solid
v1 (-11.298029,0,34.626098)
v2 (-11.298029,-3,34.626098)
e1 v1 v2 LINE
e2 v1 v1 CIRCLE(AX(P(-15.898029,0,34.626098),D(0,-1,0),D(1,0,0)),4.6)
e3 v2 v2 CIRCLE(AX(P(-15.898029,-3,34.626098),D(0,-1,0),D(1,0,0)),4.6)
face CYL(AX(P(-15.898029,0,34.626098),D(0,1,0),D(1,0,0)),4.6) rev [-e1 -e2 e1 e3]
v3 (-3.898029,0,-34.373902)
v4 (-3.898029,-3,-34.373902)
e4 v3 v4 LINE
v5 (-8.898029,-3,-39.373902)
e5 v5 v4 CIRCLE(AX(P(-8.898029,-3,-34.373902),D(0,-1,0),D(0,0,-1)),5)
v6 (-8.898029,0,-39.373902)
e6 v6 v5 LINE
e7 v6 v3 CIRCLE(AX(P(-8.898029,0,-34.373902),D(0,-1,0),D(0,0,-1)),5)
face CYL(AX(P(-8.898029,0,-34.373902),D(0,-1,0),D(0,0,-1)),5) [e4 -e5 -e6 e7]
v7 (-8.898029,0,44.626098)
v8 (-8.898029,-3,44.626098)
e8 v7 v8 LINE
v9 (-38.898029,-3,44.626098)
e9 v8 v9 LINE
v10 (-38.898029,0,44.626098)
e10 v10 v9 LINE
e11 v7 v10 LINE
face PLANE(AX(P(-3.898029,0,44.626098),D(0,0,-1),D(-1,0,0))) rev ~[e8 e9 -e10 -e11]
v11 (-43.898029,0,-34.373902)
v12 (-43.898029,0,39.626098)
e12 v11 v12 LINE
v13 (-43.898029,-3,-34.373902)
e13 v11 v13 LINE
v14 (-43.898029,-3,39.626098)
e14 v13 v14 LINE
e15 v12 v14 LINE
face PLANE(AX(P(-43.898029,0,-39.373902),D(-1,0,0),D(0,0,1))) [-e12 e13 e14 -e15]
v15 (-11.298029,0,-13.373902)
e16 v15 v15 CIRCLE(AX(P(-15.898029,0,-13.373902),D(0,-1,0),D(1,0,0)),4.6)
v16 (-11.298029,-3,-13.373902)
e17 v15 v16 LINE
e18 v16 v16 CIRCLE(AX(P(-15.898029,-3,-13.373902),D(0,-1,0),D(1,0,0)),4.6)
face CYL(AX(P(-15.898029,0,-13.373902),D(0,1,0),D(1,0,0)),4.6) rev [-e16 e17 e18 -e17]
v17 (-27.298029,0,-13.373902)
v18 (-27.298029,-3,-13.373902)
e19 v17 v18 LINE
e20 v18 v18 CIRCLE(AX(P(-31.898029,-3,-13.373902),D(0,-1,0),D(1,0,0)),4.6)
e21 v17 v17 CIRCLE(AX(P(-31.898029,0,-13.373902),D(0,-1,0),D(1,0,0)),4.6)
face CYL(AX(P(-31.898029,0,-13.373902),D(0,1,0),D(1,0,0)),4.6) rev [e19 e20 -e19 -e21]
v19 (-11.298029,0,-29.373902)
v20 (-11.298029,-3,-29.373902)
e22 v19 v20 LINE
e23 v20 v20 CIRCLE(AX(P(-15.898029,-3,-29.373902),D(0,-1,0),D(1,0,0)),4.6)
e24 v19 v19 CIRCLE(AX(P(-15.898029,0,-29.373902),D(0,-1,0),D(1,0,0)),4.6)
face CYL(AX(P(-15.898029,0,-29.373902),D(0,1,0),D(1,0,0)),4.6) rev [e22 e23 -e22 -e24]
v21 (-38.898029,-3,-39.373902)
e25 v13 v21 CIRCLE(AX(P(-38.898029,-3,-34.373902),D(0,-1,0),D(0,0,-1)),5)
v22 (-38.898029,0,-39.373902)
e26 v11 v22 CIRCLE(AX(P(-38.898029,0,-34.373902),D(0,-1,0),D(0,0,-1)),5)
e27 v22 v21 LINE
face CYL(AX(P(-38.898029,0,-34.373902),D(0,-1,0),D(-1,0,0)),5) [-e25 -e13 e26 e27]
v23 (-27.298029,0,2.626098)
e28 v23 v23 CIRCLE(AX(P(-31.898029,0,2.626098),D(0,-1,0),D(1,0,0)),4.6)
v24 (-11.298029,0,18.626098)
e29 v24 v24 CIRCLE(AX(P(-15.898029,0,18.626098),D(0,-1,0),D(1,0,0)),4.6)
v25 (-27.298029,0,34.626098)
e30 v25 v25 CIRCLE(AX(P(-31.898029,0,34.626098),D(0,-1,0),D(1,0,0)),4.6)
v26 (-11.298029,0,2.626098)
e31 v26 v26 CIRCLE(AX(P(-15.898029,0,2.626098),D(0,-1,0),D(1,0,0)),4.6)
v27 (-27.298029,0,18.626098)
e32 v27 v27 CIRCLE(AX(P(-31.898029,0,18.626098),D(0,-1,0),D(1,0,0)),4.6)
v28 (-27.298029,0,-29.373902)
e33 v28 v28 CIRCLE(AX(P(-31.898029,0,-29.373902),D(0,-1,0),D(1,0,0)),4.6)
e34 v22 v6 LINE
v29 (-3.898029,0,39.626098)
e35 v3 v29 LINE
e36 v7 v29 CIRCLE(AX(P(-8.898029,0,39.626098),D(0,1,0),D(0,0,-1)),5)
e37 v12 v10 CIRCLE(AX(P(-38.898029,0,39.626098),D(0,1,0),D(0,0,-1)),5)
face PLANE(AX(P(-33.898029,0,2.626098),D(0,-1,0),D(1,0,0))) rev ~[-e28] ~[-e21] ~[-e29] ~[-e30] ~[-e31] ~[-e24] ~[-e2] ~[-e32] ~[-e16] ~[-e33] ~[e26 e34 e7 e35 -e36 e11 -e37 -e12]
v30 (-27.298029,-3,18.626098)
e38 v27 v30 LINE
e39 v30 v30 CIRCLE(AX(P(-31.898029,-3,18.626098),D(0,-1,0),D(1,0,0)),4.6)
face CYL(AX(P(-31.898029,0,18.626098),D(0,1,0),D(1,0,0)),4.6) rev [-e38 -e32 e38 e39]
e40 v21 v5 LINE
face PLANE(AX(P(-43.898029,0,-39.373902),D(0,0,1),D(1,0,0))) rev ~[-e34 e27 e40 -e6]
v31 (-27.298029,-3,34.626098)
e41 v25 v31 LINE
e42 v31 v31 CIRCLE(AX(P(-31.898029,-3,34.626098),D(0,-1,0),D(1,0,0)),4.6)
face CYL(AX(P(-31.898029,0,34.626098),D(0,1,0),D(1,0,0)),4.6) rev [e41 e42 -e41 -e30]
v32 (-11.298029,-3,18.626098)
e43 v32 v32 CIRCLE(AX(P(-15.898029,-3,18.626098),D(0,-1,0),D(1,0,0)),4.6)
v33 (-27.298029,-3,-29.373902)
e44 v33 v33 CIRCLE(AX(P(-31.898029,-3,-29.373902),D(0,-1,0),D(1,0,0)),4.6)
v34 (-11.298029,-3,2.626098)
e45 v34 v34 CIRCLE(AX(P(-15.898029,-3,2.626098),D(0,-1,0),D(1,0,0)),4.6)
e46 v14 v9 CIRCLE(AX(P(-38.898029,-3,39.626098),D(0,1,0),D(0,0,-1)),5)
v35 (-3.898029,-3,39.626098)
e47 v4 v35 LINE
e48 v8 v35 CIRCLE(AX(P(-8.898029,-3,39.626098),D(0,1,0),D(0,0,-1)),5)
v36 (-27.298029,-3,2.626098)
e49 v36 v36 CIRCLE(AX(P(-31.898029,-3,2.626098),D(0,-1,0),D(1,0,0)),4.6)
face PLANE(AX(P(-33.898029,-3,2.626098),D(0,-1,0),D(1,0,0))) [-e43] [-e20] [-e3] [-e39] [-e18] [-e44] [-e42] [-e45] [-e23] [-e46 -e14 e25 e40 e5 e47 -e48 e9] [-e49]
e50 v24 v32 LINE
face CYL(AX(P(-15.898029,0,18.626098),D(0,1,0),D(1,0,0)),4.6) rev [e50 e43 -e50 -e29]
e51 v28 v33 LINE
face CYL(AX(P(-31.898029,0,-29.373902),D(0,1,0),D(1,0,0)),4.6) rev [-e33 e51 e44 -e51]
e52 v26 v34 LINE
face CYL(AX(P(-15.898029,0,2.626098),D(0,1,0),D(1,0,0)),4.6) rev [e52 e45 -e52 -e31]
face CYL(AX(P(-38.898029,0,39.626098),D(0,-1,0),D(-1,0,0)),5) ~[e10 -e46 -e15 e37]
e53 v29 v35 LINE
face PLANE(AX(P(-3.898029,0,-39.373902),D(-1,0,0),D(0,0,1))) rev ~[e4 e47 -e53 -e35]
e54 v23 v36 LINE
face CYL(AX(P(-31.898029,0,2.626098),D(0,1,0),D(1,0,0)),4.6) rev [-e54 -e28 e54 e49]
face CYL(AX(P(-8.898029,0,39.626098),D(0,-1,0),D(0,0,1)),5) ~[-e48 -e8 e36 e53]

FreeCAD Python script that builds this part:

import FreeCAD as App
import Part
import Sketcher

V = App.Vector


def edges_at(feature, points):
    """Names of the edges that pass closest to the given points."""
    edges = feature.Shape.Edges
    near = lambda p: min(range(len(edges)), key=lambda i: edges[i].distToShape(Part.Vertex(*p))[0])
    return sorted({f"Edge{near(p) + 1}" for p in points})

doc = App.newDocument("Part")
body = doc.addObject("PartDesign::Body", "Body")

sketch1 = doc.addObject("Sketcher::SketchObject", "Sketch")
body.addObject(sketch1)
sketch1.AttachmentSupport = (doc.XZ_Plane, [""])
sketch1.MapMode = "FlatFace"
sketch1.addGeometry([
    Part.LineSegment(V(-43.9, 44.6, 0), V(-43.9, -39.4, 0)),
    Part.LineSegment(V(-43.9, -39.4, 0), V(-3.9, -39.4, 0)),
    Part.LineSegment(V(-3.9, -39.4, 0), V(-3.9, 44.6, 0)),
    Part.LineSegment(V(-3.9, 44.6, 0), V(-43.9, 44.6, 0)),
    Part.Circle(V(-31.9, -29.4, 0), V(0, 0, 1), 4.6),
    Part.Circle(V(-31.9, -13.4, 0), V(0, 0, 1), 4.6),
    Part.Circle(V(-15.9, -29.4, 0), V(0, 0, 1), 4.6),
    Part.Circle(V(-15.9, -13.4, 0), V(0, 0, 1), 4.6),
    Part.Circle(V(-31.9, 2.6, 0), V(0, 0, 1), 4.6),
    Part.Circle(V(-31.9, 18.6, 0), V(0, 0, 1), 4.6),
    Part.Circle(V(-31.9, 34.6, 0), V(0, 0, 1), 4.6),
    Part.Circle(V(-15.9, 2.6, 0), V(0, 0, 1), 4.6),
    Part.Circle(V(-15.9, 18.6, 0), V(0, 0, 1), 4.6),
    Part.Circle(V(-15.9, 34.6, 0), V(0, 0, 1), 4.6),
], False)
sketch1.addConstraint([
    Sketcher.Constraint("Coincident", 0, 2, 1, 1),
    Sketcher.Constraint("Coincident", 1, 2, 2, 1),
    Sketcher.Constraint("Coincident", 2, 2, 3, 1),
    Sketcher.Constraint("Coincident", 3, 2, 0, 1),
    Sketcher.Constraint("Vertical", 0),
    Sketcher.Constraint("Horizontal", 1),
    Sketcher.Constraint("Vertical", 2),
    Sketcher.Constraint("Horizontal", 3),
    Sketcher.Constraint("Equal", 4, 5),
    Sketcher.Constraint("Equal", 5, 6),
    Sketcher.Constraint("Equal", 6, 7),
    Sketcher.Constraint("Equal", 7, 8),
    Sketcher.Constraint("Equal", 8, 9),
    Sketcher.Constraint("Equal", 9, 10),
    Sketcher.Constraint("Equal", 10, 11),
    Sketcher.Constraint("Equal", 11, 12),
    Sketcher.Constraint("Equal", 12, 13),
    Sketcher.Constraint("Horizontal", 4, 3, 6, 3),
    Sketcher.Constraint("Horizontal", 5, 3, 7, 3),
    Sketcher.Constraint("Horizontal", 8, 3, 11, 3),
    Sketcher.Constraint("Horizontal", 9, 3, 12, 3),
    Sketcher.Constraint("Horizontal", 10, 3, 13, 3),
    Sketcher.Constraint("Vertical", 4, 3, 5, 3),
    Sketcher.Constraint("Vertical", 6, 3, 7, 3),
    Sketcher.Constraint("Vertical", 5, 3, 8, 3),
    Sketcher.Constraint("Vertical", 8, 3, 9, 3),
    Sketcher.Constraint("Vertical", 9, 3, 10, 3),
    Sketcher.Constraint("Vertical", 7, 3, 11, 3),
    Sketcher.Constraint("Vertical", 11, 3, 12, 3),
    Sketcher.Constraint("Vertical", 12, 3, 13, 3),
    Sketcher.Constraint("Diameter", 4, 9.2),
    Sketcher.Constraint("DistanceX", 1, 1, 1, 2, 40.0),
    Sketcher.Constraint("DistanceY", 0, 2, 0, 1, 84.0),
    Sketcher.Constraint("DistanceY", 4, 3, 5, 3, 16.0),
    Sketcher.Constraint("DistanceX", 4, 3, 6, 3, 16.0),
    Sketcher.Constraint("DistanceY", 5, 3, 8, 3, 16.0),
    Sketcher.Constraint("DistanceY", 8, 3, 9, 3, 16.0),
    Sketcher.Constraint("DistanceY", 9, 3, 10, 3, 16.0),
    Sketcher.Constraint("DistanceX", 0, 2, 4, 3, 12.0),
    Sketcher.Constraint("DistanceY", 0, 2, 4, 3, 10.0),
    Sketcher.Constraint("DistanceY", 5, 3, -1, 1, 13.373902),
    Sketcher.Constraint("DistanceX", 4, 3, -1, 1, 31.898029),
])
pad1 = doc.addObject("PartDesign::Pad", "Pad")
body.addObject(pad1)
pad1.Profile = sketch1
pad1.Length = 3
doc.recompute()

fillet = doc.addObject("PartDesign::Fillet", "Fillet")
body.addObject(fillet)
fillet.Base = (pad1, edges_at(pad1, [
    (-43.898, -1.5, 44.626),
    (-3.898, -1.5, 44.626),
    (-3.898, -1.5, -39.374),
    (-43.898, -1.5, -39.374),
]))
fillet.Radius = 5

doc.recompute()
